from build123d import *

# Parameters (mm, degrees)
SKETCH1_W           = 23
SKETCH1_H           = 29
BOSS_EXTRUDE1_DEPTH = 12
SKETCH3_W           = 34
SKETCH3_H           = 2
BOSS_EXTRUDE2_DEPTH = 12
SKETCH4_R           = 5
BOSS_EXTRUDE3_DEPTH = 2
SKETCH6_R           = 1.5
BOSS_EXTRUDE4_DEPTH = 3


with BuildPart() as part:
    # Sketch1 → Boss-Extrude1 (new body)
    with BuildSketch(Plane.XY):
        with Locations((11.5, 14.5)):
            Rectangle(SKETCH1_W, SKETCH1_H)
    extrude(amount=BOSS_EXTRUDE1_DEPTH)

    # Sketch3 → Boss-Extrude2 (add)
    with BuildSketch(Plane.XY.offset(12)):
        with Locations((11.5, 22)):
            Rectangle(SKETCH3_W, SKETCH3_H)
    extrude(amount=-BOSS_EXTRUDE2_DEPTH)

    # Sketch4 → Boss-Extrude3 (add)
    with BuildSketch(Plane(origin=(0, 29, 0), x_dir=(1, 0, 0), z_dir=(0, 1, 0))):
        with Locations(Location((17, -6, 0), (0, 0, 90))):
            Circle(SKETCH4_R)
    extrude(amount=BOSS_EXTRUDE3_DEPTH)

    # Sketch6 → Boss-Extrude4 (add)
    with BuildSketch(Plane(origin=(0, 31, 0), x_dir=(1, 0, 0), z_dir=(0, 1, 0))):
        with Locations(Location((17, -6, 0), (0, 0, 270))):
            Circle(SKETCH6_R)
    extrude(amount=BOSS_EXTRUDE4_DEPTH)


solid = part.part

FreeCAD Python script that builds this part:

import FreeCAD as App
import Part
import Sketcher
from FreeCAD import Vector
Q = App.Units.Quantity

doc = App.newDocument("Part")
body = doc.addObject("PartDesign::Body", "Body")

sketch1 = doc.addObject("Sketcher::SketchObject", "Sketch")
body.addObject(sketch1)
sketch1.AttachmentSupport = (doc.XY_Plane, [""])
sketch1.MapMode = "FlatFace"
sketch1.addGeometry(Part.LineSegment(Vector(0, 29, 0), Vector(0, 0, 0)), False)
sketch1.addGeometry(Part.LineSegment(Vector(0, 0, 0), Vector(23, 0, 0)), False)
sketch1.addGeometry(Part.LineSegment(Vector(23, 0, 0), Vector(23, 29, 0)), False)
sketch1.addGeometry(Part.LineSegment(Vector(23, 29, 0), Vector(0, 29, 0)), False)
sketch1.addConstraint(Sketcher.Constraint("Coincident", 0, 2, 1, 1))
sketch1.addConstraint(Sketcher.Constraint("Coincident", 1, 2, 2, 1))
sketch1.addConstraint(Sketcher.Constraint("Coincident", 2, 2, 3, 1))
sketch1.addConstraint(Sketcher.Constraint("Coincident", 3, 2, 0, 1))
sketch1.addConstraint(Sketcher.Constraint("Vertical", 0))
sketch1.addConstraint(Sketcher.Constraint("Horizontal", 1))
sketch1.addConstraint(Sketcher.Constraint("Vertical", 2))
sketch1.addConstraint(Sketcher.Constraint("Horizontal", 3))
sketch1.addConstraint(Sketcher.Constraint("Coincident", 0, 2, -1, 1))
sketch1.addConstraint(Sketcher.Constraint("DistanceX", 1, 1, 1, 2, Q("23 mm")))
sketch1.addConstraint(Sketcher.Constraint("DistanceY", 0, 2, 0, 1, Q("29 mm")))
pad1 = doc.addObject("PartDesign::Pad", "Pad")
body.addObject(pad1)
pad1.Profile = sketch1
pad1.Length = 12

sketch2 = doc.addObject("Sketcher::SketchObject", "Sketch001")
body.addObject(sketch2)
sketch2.AttachmentSupport = (doc.XY_Plane, [""])
sketch2.MapMode = "FlatFace"
sketch2.AttachmentOffset = App.Placement(Vector(0, 0, 12), App.Rotation())
sketch2.addGeometry(Part.LineSegment(Vector(-5.5, 23, 0), Vector(-5.5, 21, 0)), False)
sketch2.addGeometry(Part.LineSegment(Vector(-5.5, 21, 0), Vector(28.5, 21, 0)), False)
sketch2.addGeometry(Part.LineSegment(Vector(28.5, 21, 0), Vector(28.5, 23, 0)), False)
sketch2.addGeometry(Part.LineSegment(Vector(28.5, 23, 0), Vector(-5.5, 23, 0)), False)
sketch2.addConstraint(Sketcher.Constraint("Coincident", 0, 2, 1, 1))
sketch2.addConstraint(Sketcher.Constraint("Coincident", 1, 2, 2, 1))
sketch2.addConstraint(Sketcher.Constraint("Coincident", 2, 2, 3, 1))
sketch2.addConstraint(Sketcher.Constraint("Coincident", 3, 2, 0, 1))
sketch2.addConstraint(Sketcher.Constraint("Vertical", 0))
sketch2.addConstraint(Sketcher.Constraint("Horizontal", 1))
sketch2.addConstraint(Sketcher.Constraint("Vertical", 2))
sketch2.addConstraint(Sketcher.Constraint("Horizontal", 3))
sketch2.addConstraint(Sketcher.Constraint("DistanceX", 1, 1, 1, 2, Q("34 mm")))
sketch2.addConstraint(Sketcher.Constraint("DistanceY", 0, 2, 0, 1, Q("2 mm")))
sketch2.addConstraint(Sketcher.Constraint("DistanceY", -1, 1, 0, 2, Q("21 mm")))
sketch2.addConstraint(Sketcher.Constraint("DistanceX", 0, 2, -1, 1, Q("5.5 mm")))
pad2 = doc.addObject("PartDesign::Pad", "Pad001")
body.addObject(pad2)
pad2.Profile = sketch2
pad2.Length = 12
pad2.Reversed = True

sketch3 = doc.addObject("Sketcher::SketchObject", "Sketch002")
body.addObject(sketch3)
sketch3.AttachmentSupport = (doc.XZ_Plane, [""])
sketch3.MapMode = "FlatFace"
sketch3.AttachmentOffset = App.Placement(Vector(0, 0, -29), App.Rotation())
sketch3.addGeometry(Part.Circle(Vector(17, 6, 0), Vector(0, 0, 1), 5), False)
sketch3.addConstraint(Sketcher.Constraint("Diameter", 0, Q("10 mm")))
sketch3.addConstraint(Sketcher.Constraint("DistanceX", -1, 1, 0, 3, Q("17 mm")))
sketch3.addConstraint(Sketcher.Constraint("DistanceY", -1, 1, 0, 3, Q("6 mm")))
pad3 = doc.addObject("PartDesign::Pad", "Pad002")
body.addObject(pad3)
pad3.Profile = sketch3
pad3.Length = 2
pad3.Reversed = True

sketch4 = doc.addObject("Sketcher::SketchObject", "Sketch003")
body.addObject(sketch4)
sketch4.AttachmentSupport = (doc.XZ_Plane, [""])
sketch4.MapMode = "FlatFace"
sketch4.AttachmentOffset = App.Placement(Vector(0, 0, -31), App.Rotation())
sketch4.addGeometry(Part.Circle(Vector(17, 6, 0), Vector(0, 0, 1), 1.5), False)
sketch4.addConstraint(Sketcher.Constraint("Diameter", 0, Q("3 mm")))
sketch4.addConstraint(Sketcher.Constraint("DistanceX", -1, 1, 0, 3, Q("17 mm")))
sketch4.addConstraint(Sketcher.Constraint("DistanceY", -1, 1, 0, 3, Q("6 mm")))
pad4 = doc.addObject("PartDesign::Pad", "Pad003")
body.addObject(pad4)
pad4.Profile = sketch4
pad4.Length = 3
pad4.Reversed = True

doc.recompute()
